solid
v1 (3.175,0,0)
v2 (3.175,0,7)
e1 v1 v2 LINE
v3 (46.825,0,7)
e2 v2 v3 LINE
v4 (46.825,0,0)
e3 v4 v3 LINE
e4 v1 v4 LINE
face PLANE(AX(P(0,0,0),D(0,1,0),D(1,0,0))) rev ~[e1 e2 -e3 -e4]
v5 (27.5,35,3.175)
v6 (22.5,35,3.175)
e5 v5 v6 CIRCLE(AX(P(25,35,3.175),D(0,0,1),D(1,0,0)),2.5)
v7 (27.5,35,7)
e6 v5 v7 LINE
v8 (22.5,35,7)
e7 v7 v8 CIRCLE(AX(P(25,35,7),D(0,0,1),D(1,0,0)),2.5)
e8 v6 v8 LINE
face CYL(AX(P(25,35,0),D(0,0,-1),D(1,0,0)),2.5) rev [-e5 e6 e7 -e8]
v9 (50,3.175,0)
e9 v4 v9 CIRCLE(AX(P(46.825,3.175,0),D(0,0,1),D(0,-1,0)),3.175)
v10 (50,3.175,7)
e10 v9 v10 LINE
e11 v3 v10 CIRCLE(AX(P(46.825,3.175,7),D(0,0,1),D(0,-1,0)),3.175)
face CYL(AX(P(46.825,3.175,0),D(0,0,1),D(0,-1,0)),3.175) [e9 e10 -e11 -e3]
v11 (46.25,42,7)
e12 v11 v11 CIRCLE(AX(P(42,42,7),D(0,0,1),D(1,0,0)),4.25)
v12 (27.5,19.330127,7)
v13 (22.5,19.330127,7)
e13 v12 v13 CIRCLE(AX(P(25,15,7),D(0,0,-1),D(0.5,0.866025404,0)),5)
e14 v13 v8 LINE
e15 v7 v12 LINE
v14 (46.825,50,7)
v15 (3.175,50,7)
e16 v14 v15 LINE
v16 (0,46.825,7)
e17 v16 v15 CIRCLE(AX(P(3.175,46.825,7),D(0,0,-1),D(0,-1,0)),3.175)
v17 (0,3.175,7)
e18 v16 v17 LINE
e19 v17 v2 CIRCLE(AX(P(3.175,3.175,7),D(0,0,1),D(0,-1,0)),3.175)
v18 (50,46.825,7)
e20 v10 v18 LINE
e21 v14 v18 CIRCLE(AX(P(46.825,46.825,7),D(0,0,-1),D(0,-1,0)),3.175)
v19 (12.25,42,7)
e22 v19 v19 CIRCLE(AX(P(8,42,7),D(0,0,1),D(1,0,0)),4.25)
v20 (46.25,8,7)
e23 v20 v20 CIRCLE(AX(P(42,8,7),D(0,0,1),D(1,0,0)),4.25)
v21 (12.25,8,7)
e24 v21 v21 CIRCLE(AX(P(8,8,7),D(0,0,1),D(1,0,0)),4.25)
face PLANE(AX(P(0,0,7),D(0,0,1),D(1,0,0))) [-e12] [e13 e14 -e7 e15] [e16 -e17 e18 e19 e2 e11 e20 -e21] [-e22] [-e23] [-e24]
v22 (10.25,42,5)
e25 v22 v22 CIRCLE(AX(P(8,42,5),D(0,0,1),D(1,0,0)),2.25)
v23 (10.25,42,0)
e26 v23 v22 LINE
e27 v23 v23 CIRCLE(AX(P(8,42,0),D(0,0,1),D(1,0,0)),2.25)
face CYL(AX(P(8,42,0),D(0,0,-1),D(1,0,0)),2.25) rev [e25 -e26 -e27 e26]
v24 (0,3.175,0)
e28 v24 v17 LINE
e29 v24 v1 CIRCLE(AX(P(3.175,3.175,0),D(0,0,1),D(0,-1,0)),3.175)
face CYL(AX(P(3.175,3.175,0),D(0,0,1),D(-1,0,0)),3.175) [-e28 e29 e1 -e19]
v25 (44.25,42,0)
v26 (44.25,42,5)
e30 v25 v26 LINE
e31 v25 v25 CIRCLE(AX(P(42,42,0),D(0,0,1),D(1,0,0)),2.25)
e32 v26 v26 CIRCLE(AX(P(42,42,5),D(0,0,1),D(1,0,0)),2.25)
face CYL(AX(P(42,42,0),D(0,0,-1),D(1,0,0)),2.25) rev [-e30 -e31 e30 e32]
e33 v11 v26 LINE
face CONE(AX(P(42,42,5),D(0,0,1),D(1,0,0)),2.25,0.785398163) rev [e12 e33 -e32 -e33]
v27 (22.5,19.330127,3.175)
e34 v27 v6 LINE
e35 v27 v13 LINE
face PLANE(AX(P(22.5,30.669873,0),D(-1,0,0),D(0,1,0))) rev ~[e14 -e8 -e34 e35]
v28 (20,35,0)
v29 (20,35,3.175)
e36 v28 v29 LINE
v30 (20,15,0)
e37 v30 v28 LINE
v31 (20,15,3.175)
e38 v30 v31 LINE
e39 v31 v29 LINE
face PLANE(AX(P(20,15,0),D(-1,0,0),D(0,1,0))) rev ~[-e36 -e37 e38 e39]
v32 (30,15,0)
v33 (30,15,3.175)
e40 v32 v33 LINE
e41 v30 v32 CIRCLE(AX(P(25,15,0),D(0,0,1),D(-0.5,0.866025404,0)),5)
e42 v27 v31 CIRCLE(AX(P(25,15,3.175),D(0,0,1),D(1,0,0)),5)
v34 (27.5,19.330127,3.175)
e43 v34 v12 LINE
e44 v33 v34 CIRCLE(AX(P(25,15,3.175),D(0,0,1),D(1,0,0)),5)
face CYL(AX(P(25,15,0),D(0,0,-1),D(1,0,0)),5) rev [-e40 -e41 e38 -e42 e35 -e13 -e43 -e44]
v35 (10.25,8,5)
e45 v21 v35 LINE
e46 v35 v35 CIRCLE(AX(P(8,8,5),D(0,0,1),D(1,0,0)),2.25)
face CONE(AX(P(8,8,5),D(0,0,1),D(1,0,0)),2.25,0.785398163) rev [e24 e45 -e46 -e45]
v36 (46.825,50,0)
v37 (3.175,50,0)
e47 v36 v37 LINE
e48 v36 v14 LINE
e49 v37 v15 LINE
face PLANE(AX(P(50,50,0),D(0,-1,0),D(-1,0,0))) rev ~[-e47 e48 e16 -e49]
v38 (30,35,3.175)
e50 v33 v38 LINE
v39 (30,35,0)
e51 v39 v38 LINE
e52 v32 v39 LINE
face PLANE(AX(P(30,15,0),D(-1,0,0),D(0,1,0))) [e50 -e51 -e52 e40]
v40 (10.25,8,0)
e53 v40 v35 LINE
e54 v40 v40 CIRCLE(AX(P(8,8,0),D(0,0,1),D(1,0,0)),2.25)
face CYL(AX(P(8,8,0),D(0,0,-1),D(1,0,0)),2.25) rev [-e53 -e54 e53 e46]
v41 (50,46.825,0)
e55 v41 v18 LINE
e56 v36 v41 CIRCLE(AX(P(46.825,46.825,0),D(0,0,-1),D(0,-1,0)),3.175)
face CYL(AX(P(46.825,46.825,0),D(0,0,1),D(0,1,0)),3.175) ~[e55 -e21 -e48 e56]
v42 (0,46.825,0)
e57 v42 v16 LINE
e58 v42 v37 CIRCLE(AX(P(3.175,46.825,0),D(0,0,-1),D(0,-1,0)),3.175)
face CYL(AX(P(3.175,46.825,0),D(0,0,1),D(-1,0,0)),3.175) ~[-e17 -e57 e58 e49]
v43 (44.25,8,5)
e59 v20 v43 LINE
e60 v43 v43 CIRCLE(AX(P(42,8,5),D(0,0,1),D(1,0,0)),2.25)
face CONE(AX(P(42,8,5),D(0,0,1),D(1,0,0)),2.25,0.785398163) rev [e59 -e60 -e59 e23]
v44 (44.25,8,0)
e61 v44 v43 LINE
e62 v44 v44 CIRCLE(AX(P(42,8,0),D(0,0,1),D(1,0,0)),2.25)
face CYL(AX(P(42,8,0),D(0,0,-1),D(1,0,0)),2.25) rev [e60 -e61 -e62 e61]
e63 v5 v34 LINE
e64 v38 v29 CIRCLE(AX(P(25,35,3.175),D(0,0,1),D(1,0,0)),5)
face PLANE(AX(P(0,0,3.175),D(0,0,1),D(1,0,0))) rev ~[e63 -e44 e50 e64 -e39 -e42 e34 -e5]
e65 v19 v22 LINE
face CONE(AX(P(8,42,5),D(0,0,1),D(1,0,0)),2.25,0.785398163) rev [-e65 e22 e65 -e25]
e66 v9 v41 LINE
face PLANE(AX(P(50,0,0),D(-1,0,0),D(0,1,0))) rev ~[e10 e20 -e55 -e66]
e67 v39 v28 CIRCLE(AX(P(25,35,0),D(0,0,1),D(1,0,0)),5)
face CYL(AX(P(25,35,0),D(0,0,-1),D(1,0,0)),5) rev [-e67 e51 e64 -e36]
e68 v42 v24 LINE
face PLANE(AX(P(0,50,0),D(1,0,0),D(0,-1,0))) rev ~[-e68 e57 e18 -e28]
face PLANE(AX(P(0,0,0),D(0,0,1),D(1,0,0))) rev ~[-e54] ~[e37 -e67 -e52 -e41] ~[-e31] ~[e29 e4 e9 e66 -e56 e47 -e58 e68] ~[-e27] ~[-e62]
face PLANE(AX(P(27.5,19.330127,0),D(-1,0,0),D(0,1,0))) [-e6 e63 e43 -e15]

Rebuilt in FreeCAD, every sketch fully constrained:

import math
import FreeCAD as App
import Part
import Sketcher
from FreeCAD import Vector


def edges_at(feature, points):
    """Names of the edges that pass closest to the given points."""
    edges = feature.Shape.Edges
    near = lambda p: min(range(len(edges)), key=lambda i: edges[i].distToShape(Part.Vertex(*p))[0])
    return sorted({f"Edge{near(p) + 1}" for p in points})

doc = App.newDocument("Part")
body = doc.addObject("PartDesign::Body", "Body")

# Sketch on XY plane
sketch1 = body.newObject("Sketcher::SketchObject", "Sketch")
sketch1.AttachmentSupport = (doc.getObject("XY_Plane"), [""])
sketch1.MapMode = "FlatFace"
sketch1.addGeometry([
    Part.LineSegment(Vector(0, 50, 0), Vector(0, 0, 0)),  # 0
    Part.LineSegment(Vector(0, 0, 0), Vector(50, 0, 0)),  # 1
    Part.LineSegment(Vector(50, 0, 0), Vector(50, 50, 0)),  # 2
    Part.LineSegment(Vector(50, 50, 0), Vector(0, 50, 0)),  # 3
    Part.Circle(Vector(8, 8, 0), Vector(0, 0, 1), 2.2),  # 4
    Part.Circle(Vector(42, 8, 0), Vector(0, 0, 1), 2.2),  # 5
    Part.Circle(Vector(8, 42, 0), Vector(0, 0, 1), 2.2),  # 6
    Part.LineSegment(Vector(22.5, 19.3, 0), Vector(22.5, 35, 0)),  # 7
    Part.ArcOfCircle(Part.Circle(Vector(25, 35, 0), Vector(0, 0, 1), 2.5), math.radians(0), math.radians(180)),  # 8
    Part.LineSegment(Vector(27.5, 35, 0), Vector(27.5, 19.3, 0)),  # 9
    Part.ArcOfCircle(Part.Circle(Vector(25, 15, 0), Vector(0, 0, 1), 5), math.radians(120), math.radians(420)),  # 10
    Part.Circle(Vector(42, 42, 0), Vector(0, 0, 1), 2.2),  # 11
], False)
sketch1.addConstraint([
    Sketcher.Constraint("Coincident", 0, 2, 1, 1),
    Sketcher.Constraint("Coincident", 1, 2, 2, 1),
    Sketcher.Constraint("Coincident", 2, 2, 3, 1),
    Sketcher.Constraint("Coincident", 3, 2, 0, 1),
    Sketcher.Constraint("Tangent", 7, 2, 8, 2),
    Sketcher.Constraint("Tangent", 8, 1, 9, 1),
    Sketcher.Constraint("Coincident", 9, 2, 10, 2),
    Sketcher.Constraint("Coincident", 10, 1, 7, 1),
    Sketcher.Constraint("Vertical", 0),
    Sketcher.Constraint("Horizontal", 1),
    Sketcher.Constraint("Vertical", 2),
    Sketcher.Constraint("Horizontal", 3),
    Sketcher.Constraint("Vertical", 7),
    Sketcher.Constraint("Vertical", 9),
    Sketcher.Constraint("Coincident", 0, 2, -1, 1),
    Sketcher.Constraint("Equal", 4, 5),
    Sketcher.Constraint("Equal", 5, 6),
    Sketcher.Constraint("Equal", 6, 11),
    Sketcher.Constraint("Horizontal", 4, 3, 5, 3),
    Sketcher.Constraint("Horizontal", 6, 3, 11, 3),
    Sketcher.Constraint("Horizontal", 9, 2, 10, 1),
    Sketcher.Constraint("Vertical", 4, 3, 6, 3),
    Sketcher.Constraint("Vertical", 5, 3, 11, 3),
    Sketcher.Constraint("Equal", 3, 0),
    Sketcher.Constraint("Radius", 10, 5.0),
    Sketcher.Constraint("Diameter", 4, 4.5),
    Sketcher.Constraint("Radius", 8, 2.5),
    Sketcher.Constraint("DistanceX", 1, 1, 1, 2, 50.0),
    Sketcher.Constraint("DistanceX", -1, 1, 4, 3, 8.0),
    Sketcher.Constraint("DistanceY", -1, 1, 4, 3, 8.0),
    Sketcher.Constraint("DistanceY", -1, 1, 10, 3, 15.0),
    Sketcher.Constraint("DistanceY", 10, 3, 8, 3, 20.0),
    Sketcher.Constraint("DistanceX", 5, 3, 1, 2, 8.0),
    Sketcher.Constraint("DistanceY", 11, 3, 2, 2, 8.0),
    Sketcher.Constraint("DistanceX", -1, 1, 8, 3, 25.0),
])
pad1 = body.newObject("PartDesign::Pad", "Pad")
pad1.Profile = sketch1
pad1.Length = 7

# Sketch on XY plane
sketch2 = body.newObject("Sketcher::SketchObject", "Sketch001")
sketch2.AttachmentSupport = (doc.getObject("XY_Plane"), [""])
sketch2.MapMode = "FlatFace"
sketch2.addGeometry([
    Part.LineSegment(Vector(20, 35, 0), Vector(20, 15, 0)),  # 0
    Part.ArcOfCircle(Part.Circle(Vector(25, 15, 0), Vector(0, 0, 1), 5), math.radians(120), math.radians(180)),  # 1
    Part.LineSegment(Vector(22.5, 19.3, 0), Vector(22.5, 35, 0)),  # 2
    Part.ArcOfCircle(Part.Circle(Vector(25, 35, 0), Vector(0, 0, 1), 2.5), math.radians(0), math.radians(180)),  # 3
    Part.LineSegment(Vector(27.5, 35, 0), Vector(27.5, 19.3, 0)),  # 4
    Part.ArcOfCircle(Part.Circle(Vector(25, 15, 0), Vector(0, 0, 1), 5), math.radians(0), math.radians(60)),  # 5
    Part.LineSegment(Vector(30, 15, 0), Vector(30, 35, 0)),  # 6
    Part.ArcOfCircle(Part.Circle(Vector(25, 35, 0), Vector(0, 0, 1), 5), math.radians(0), math.radians(180)),  # 7
], False)
sketch2.addConstraint([
    Sketcher.Constraint("Tangent", 0, 2, 1, 2),
    Sketcher.Constraint("Coincident", 1, 1, 2, 1),
    Sketcher.Constraint("Tangent", 2, 2, 3, 2),
    Sketcher.Constraint("Tangent", 3, 1, 4, 1),
    Sketcher.Constraint("Coincident", 4, 2, 5, 2),
    Sketcher.Constraint("Tangent", 5, 1, 6, 1),
    Sketcher.Constraint("Tangent", 6, 2, 7, 1),
    Sketcher.Constraint("Tangent", 7, 2, 0, 1),
    Sketcher.Constraint("Vertical", 0),
    Sketcher.Constraint("Vertical", 2),
    Sketcher.Constraint("Vertical", 4),
    Sketcher.Constraint("Vertical", 6),
    Sketcher.Constraint("Coincident", 5, 3, 1, 3),
    Sketcher.Constraint("Coincident", 7, 3, 3, 3),
    Sketcher.Constraint("Equal", 1, 5),
    Sketcher.Constraint("Radius", 1, 5.0),
    Sketcher.Constraint("Radius", 3, 2.5),
    Sketcher.Constraint("DistanceY", 0, 2, 0, 1, 20.0),
    Sketcher.Constraint("DistanceY", -1, 1, 1, 3, 15.0),
    Sketcher.Constraint("DistanceX", -1, 1, 0, 2, 20.0),
])
pocket1 = body.newObject("PartDesign::Pocket", "Pocket")
pocket1.Profile = sketch2
pocket1.Length = 3.175
pocket1.Reversed = True
doc.recompute()

fillet = body.newObject("PartDesign::Fillet", "Fillet")
fillet.Base = (pocket1, edges_at(pocket1, [
    (0, 0, 3.5),
    (50, 0, 3.5),
    (50, 50, 3.5),
    (0, 50, 3.5),
]))
fillet.Radius = 3.175
doc.recompute()

chamfer = body.newObject("PartDesign::Chamfer", "Chamfer")
chamfer.Base = (fillet, edges_at(fillet, [
    (5.902, 42.814, 7),
    (5.902, 8.814, 7),
    (39.902, 8.814, 7),
    (39.902, 42.814, 7),
]))
chamfer.Size = 2

doc.recompute()
